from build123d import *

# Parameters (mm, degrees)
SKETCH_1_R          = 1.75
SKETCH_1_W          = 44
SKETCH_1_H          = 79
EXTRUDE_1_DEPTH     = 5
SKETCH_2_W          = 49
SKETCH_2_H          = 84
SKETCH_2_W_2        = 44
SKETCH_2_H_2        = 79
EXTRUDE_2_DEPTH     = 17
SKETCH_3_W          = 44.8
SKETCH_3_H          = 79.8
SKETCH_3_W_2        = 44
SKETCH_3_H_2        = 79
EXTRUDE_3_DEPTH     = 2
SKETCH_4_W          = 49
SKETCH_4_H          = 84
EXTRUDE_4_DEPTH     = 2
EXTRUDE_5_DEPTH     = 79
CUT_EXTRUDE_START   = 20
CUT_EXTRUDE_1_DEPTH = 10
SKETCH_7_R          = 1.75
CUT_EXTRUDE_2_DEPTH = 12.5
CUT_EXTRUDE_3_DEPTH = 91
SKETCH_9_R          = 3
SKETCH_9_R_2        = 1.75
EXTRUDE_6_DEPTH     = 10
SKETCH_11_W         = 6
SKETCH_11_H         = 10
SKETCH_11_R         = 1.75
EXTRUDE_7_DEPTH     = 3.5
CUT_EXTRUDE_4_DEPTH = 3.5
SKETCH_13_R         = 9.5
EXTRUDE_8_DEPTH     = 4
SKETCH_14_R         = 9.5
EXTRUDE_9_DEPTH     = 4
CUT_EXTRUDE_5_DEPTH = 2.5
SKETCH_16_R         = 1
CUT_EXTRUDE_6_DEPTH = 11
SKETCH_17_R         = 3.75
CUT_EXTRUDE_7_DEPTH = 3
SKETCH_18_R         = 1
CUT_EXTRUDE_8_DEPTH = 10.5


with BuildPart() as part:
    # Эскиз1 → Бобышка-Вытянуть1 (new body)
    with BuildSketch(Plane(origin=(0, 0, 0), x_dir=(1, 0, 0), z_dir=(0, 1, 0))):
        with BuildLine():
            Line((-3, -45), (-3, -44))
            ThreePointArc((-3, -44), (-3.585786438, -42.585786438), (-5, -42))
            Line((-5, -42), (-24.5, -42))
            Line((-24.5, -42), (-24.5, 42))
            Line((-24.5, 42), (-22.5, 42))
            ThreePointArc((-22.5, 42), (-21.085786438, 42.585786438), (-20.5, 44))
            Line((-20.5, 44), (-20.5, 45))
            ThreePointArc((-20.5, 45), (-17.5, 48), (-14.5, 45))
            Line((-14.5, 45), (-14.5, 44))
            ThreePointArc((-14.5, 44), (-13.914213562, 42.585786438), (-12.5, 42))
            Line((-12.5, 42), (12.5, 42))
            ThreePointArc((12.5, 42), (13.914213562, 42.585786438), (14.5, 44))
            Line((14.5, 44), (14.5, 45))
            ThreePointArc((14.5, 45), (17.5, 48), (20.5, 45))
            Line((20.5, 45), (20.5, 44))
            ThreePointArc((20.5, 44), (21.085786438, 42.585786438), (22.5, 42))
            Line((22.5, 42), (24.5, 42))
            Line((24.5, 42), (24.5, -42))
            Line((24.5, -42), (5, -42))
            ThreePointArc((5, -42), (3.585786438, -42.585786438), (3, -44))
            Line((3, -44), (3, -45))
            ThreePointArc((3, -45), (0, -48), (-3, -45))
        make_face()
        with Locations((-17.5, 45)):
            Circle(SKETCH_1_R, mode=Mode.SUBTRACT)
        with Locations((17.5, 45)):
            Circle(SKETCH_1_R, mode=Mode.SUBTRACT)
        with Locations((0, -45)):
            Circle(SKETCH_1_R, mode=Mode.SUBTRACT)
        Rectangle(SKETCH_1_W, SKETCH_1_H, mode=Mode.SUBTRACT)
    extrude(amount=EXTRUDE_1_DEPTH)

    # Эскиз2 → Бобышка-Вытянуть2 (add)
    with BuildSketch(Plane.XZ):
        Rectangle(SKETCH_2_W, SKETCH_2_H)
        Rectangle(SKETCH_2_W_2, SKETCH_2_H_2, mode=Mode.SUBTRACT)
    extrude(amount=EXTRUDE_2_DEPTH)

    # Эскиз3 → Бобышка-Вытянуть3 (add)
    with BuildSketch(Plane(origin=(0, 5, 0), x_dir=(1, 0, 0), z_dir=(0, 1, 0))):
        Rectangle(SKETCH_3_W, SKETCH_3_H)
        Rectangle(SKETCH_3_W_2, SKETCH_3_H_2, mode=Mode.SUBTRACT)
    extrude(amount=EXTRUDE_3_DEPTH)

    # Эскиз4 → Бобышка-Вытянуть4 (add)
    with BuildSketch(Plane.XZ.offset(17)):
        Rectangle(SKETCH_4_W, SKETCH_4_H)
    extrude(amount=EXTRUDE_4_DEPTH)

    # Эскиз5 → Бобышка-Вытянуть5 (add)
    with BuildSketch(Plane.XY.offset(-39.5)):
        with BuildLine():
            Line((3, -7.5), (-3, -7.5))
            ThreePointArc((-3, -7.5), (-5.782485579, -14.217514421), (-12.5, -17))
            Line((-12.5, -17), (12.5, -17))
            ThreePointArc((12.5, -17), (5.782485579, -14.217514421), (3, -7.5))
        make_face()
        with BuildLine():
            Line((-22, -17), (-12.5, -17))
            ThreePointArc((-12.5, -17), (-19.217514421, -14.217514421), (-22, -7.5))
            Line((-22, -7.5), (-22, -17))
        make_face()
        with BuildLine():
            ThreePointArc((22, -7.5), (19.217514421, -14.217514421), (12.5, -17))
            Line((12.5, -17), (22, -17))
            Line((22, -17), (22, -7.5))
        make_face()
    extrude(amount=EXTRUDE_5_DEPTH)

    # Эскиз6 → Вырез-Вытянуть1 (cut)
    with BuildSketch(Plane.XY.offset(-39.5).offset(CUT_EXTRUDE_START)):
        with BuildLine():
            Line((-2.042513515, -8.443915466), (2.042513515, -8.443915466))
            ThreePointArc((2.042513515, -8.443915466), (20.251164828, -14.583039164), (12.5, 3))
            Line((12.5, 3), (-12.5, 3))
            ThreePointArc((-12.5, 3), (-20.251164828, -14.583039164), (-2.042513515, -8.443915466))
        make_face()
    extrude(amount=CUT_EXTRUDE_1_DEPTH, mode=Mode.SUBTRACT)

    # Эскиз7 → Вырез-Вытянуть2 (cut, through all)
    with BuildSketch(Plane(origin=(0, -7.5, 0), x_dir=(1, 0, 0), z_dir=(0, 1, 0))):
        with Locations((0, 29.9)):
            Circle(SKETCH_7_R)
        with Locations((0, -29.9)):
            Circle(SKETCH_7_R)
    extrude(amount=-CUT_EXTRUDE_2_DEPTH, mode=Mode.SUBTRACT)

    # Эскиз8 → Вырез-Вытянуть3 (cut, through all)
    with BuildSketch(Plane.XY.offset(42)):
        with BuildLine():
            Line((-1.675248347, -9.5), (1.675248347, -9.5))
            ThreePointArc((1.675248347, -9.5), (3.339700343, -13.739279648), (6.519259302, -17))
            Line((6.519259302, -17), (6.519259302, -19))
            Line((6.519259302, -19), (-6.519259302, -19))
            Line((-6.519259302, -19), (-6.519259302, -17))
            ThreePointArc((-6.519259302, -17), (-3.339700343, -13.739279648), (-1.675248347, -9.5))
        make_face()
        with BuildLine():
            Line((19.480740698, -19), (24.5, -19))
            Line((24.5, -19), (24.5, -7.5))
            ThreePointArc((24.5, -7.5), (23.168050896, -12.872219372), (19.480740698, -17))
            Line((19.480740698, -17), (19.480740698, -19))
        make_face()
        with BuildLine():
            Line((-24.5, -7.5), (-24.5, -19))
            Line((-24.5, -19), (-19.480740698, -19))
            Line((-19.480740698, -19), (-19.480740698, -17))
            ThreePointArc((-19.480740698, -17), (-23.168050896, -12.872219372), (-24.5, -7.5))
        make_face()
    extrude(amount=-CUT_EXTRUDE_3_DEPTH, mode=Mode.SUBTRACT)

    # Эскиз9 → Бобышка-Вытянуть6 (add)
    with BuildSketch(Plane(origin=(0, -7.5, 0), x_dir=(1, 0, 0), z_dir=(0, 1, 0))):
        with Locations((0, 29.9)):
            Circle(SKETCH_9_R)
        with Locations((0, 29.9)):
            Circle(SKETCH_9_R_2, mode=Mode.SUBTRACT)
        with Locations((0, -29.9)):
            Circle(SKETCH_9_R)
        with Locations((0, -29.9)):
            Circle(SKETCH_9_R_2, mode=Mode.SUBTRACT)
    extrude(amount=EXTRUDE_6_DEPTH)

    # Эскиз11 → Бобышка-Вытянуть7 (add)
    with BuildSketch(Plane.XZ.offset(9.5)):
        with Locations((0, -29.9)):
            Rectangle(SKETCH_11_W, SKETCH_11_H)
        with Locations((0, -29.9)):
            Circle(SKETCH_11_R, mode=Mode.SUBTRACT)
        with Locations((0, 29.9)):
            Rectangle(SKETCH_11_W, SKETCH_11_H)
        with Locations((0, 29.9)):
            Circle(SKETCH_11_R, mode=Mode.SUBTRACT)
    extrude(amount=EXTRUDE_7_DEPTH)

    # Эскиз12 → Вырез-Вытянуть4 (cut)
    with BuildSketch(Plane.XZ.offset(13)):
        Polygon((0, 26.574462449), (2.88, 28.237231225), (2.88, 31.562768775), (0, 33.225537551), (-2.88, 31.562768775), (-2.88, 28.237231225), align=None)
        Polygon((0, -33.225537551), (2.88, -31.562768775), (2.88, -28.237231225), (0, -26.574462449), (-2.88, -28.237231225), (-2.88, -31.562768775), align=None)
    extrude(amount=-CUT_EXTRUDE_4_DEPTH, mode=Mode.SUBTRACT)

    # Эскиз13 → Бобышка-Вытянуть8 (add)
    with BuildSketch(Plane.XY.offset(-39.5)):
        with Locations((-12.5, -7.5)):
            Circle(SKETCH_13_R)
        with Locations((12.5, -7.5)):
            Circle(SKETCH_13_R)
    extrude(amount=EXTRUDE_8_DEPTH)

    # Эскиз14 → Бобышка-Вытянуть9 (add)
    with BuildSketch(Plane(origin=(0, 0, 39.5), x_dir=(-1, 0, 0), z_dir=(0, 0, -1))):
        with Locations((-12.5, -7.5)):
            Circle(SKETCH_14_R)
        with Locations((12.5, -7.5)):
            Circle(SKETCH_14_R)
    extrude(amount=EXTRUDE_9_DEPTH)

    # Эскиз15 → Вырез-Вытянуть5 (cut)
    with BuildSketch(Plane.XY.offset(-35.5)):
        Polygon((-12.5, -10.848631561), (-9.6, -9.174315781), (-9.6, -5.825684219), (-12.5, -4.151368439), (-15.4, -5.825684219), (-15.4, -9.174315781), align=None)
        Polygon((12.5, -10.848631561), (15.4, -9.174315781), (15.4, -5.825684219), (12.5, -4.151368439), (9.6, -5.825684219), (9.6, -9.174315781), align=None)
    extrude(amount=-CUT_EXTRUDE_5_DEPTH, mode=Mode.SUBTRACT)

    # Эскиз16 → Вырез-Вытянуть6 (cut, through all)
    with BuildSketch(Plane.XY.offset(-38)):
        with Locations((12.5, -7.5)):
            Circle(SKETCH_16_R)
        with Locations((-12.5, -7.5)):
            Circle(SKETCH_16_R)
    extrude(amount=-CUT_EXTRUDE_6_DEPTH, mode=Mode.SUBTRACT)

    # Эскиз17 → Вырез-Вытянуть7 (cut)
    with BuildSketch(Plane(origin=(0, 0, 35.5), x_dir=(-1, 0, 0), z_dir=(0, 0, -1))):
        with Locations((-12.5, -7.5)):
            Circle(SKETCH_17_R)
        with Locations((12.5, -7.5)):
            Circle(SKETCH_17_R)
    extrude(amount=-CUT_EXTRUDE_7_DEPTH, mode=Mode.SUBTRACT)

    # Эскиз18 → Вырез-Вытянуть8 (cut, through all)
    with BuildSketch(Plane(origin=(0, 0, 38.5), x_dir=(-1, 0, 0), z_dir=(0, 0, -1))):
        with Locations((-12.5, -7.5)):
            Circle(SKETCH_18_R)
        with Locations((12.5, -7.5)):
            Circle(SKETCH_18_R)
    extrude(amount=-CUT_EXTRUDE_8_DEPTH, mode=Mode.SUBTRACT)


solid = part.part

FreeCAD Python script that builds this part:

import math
import FreeCAD as App
import Part
import Sketcher
Q = App.Units.Quantity

doc = App.newDocument("Part")
body = doc.addObject("PartDesign::Body", "Body")

# Sketch on XZ plane
sketch1 = body.newObject("Sketcher::SketchObject", "Sketch")
sketch1.AttachmentSupport = (doc.getObject("XZ_Plane"), [""])
sketch1.MapMode = "FlatFace"
sketch1.addGeometry(Part.LineSegment(App.Vector(-3, 44, 0), App.Vector(-3, 45, 0)), False)
sketch1.addGeometry(Part.ArcOfCircle(Part.Circle(App.Vector(0, 45, 0), App.Vector(0, 0, 1), 3), math.radians(0), math.radians(180)), False)
sketch1.addGeometry(Part.LineSegment(App.Vector(3, 45, 0), App.Vector(3, 44, 0)), False)
sketch1.addGeometry(Part.ArcOfCircle(Part.Circle(App.Vector(5, 44, 0), App.Vector(0, 0, 1), 2), math.radians(-180), math.radians(-90)), False)
sketch1.addGeometry(Part.LineSegment(App.Vector(5, 42, 0), App.Vector(24.5, 42, 0)), False)
sketch1.addGeometry(Part.LineSegment(App.Vector(24.5, 42, 0), App.Vector(24.5, -42, 0)), False)
sketch1.addGeometry(Part.LineSegment(App.Vector(24.5, -42, 0), App.Vector(22.5, -42, 0)), False)
sketch1.addGeometry(Part.ArcOfCircle(Part.Circle(App.Vector(22.5, -44, 0), App.Vector(0, 0, 1), 2), math.radians(90), math.radians(180)), False)
sketch1.addGeometry(Part.LineSegment(App.Vector(20.5, -44, 0), App.Vector(20.5, -45, 0)), False)
sketch1.addGeometry(Part.ArcOfCircle(Part.Circle(App.Vector(17.5, -45, 0), App.Vector(0, 0, 1), 3), math.radians(180), math.radians(360)), False)
sketch1.addGeometry(Part.LineSegment(App.Vector(14.5, -45, 0), App.Vector(14.5, -44, 0)), False)
sketch1.addGeometry(Part.ArcOfCircle(Part.Circle(App.Vector(12.5, -44, 0), App.Vector(0, 0, 1), 2), math.radians(0), math.radians(90)), False)
sketch1.addGeometry(Part.LineSegment(App.Vector(12.5, -42, 0), App.Vector(-12.5, -42, 0)), False)
sketch1.addGeometry(Part.ArcOfCircle(Part.Circle(App.Vector(-12.5, -44, 0), App.Vector(0, 0, 1), 2), math.radians(90), math.radians(180)), False)
sketch1.addGeometry(Part.LineSegment(App.Vector(-14.5, -44, 0), App.Vector(-14.5, -45, 0)), False)
sketch1.addGeometry(Part.ArcOfCircle(Part.Circle(App.Vector(-17.5, -45, 0), App.Vector(0, 0, 1), 3), math.radians(180), math.radians(360)), False)
sketch1.addGeometry(Part.LineSegment(App.Vector(-20.5, -45, 0), App.Vector(-20.5, -44, 0)), False)
sketch1.addGeometry(Part.ArcOfCircle(Part.Circle(App.Vector(-22.5, -44, 0), App.Vector(0, 0, 1), 2), math.radians(0), math.radians(90)), False)
sketch1.addGeometry(Part.LineSegment(App.Vector(-22.5, -42, 0), App.Vector(-24.5, -42, 0)), False)
sketch1.addGeometry(Part.LineSegment(App.Vector(-24.5, -42, 0), App.Vector(-24.5, 42, 0)), False)
sketch1.addGeometry(Part.LineSegment(App.Vector(-24.5, 42, 0), App.Vector(-5, 42, 0)), False)
sketch1.addGeometry(Part.ArcOfCircle(Part.Circle(App.Vector(-5, 44, 0), App.Vector(0, 0, 1), 2), math.radians(-90), math.radians(0)), False)
sketch1.addGeometry(Part.Circle(App.Vector(0, 45, 0), App.Vector(0, 0, 1), 1.8), False)
sketch1.addGeometry(Part.LineSegment(App.Vector(-22, 39.5, 0), App.Vector(-22, -39.5, 0)), False)
sketch1.addGeometry(Part.LineSegment(App.Vector(-22, -39.5, 0), App.Vector(22, -39.5, 0)), False)
sketch1.addGeometry(Part.LineSegment(App.Vector(22, -39.5, 0), App.Vector(22, 39.5, 0)), False)
sketch1.addGeometry(Part.LineSegment(App.Vector(22, 39.5, 0), App.Vector(-22, 39.5, 0)), False)
sketch1.addGeometry(Part.Circle(App.Vector(17.5, -45, 0), App.Vector(0, 0, 1), 1.8), False)
sketch1.addGeometry(Part.Circle(App.Vector(-17.5, -45, 0), App.Vector(0, 0, 1), 1.8), False)
sketch1.addConstraint(Sketcher.Constraint("Tangent", 0, 2, 1, 2))
sketch1.addConstraint(Sketcher.Constraint("Tangent", 1, 1, 2, 1))
sketch1.addConstraint(Sketcher.Constraint("Tangent", 2, 2, 3, 1))
sketch1.addConstraint(Sketcher.Constraint("Tangent", 3, 2, 4, 1))
sketch1.addConstraint(Sketcher.Constraint("Coincident", 4, 2, 5, 1))
sketch1.addConstraint(Sketcher.Constraint("Coincident", 5, 2, 6, 1))
sketch1.addConstraint(Sketcher.Constraint("Tangent", 6, 2, 7, 1))
sketch1.addConstraint(Sketcher.Constraint("Tangent", 7, 2, 8, 1))
sketch1.addConstraint(Sketcher.Constraint("Tangent", 8, 2, 9, 2))
sketch1.addConstraint(Sketcher.Constraint("Tangent", 9, 1, 10, 1))
sketch1.addConstraint(Sketcher.Constraint("Tangent", 10, 2, 11, 1))
sketch1.addConstraint(Sketcher.Constraint("Tangent", 11, 2, 12, 1))
sketch1.addConstraint(Sketcher.Constraint("Tangent", 12, 2, 13, 1))
sketch1.addConstraint(Sketcher.Constraint("Tangent", 13, 2, 14, 1))
sketch1.addConstraint(Sketcher.Constraint("Tangent", 14, 2, 15, 2))
sketch1.addConstraint(Sketcher.Constraint("Tangent", 15, 1, 16, 1))
sketch1.addConstraint(Sketcher.Constraint("Tangent", 16, 2, 17, 1))
sketch1.addConstraint(Sketcher.Constraint("Tangent", 17, 2, 18, 1))
sketch1.addConstraint(Sketcher.Constraint("Coincident", 18, 2, 19, 1))
sketch1.addConstraint(Sketcher.Constraint("Coincident", 19, 2, 20, 1))
sketch1.addConstraint(Sketcher.Constraint("Tangent", 20, 2, 21, 1))
sketch1.addConstraint(Sketcher.Constraint("Tangent", 21, 2, 0, 1))
sketch1.addConstraint(Sketcher.Constraint("Coincident", 23, 2, 24, 1))
sketch1.addConstraint(Sketcher.Constraint("Coincident", 24, 2, 25, 1))
sketch1.addConstraint(Sketcher.Constraint("Coincident", 25, 2, 26, 1))
sketch1.addConstraint(Sketcher.Constraint("Coincident", 26, 2, 23, 1))
sketch1.addConstraint(Sketcher.Constraint("Vertical", 0))
sketch1.addConstraint(Sketcher.Constraint("Vertical", 2))
sketch1.addConstraint(Sketcher.Constraint("Horizontal", 4))
sketch1.addConstraint(Sketcher.Constraint("Vertical", 5))
sketch1.addConstraint(Sketcher.Constraint("Horizontal", 6))
sketch1.addConstraint(Sketcher.Constraint("Vertical", 8))
sketch1.addConstraint(Sketcher.Constraint("Vertical", 10))
sketch1.addConstraint(Sketcher.Constraint("Horizontal", 12))
sketch1.addConstraint(Sketcher.Constraint("Vertical", 14))
sketch1.addConstraint(Sketcher.Constraint("Vertical", 16))
sketch1.addConstraint(Sketcher.Constraint("Horizontal", 18))
sketch1.addConstraint(Sketcher.Constraint("Vertical", 19))
sketch1.addConstraint(Sketcher.Constraint("Horizontal", 20))
sketch1.addConstraint(Sketcher.Constraint("Vertical", 23))
sketch1.addConstraint(Sketcher.Constraint("Horizontal", 24))
sketch1.addConstraint(Sketcher.Constraint("Vertical", 25))
sketch1.addConstraint(Sketcher.Constraint("Horizontal", 26))
sketch1.addConstraint(Sketcher.Constraint("Coincident", 22, 3, 1, 3))
sketch1.addConstraint(Sketcher.Constraint("Coincident", 27, 3, 9, 3))
sketch1.addConstraint(Sketcher.Constraint("Coincident", 28, 3, 15, 3))
sketch1.addConstraint(Sketcher.Constraint("Equal", 3, 7))
sketch1.addConstraint(Sketcher.Constraint("Equal", 1, 9))
sketch1.addConstraint(Sketcher.Constraint("Equal", 7, 11))
sketch1.addConstraint(Sketcher.Constraint("Equal", 11, 13))
sketch1.addConstraint(Sketcher.Constraint("Equal", 9, 15))
sketch1.addConstraint(Sketcher.Constraint("Equal", 13, 17))
sketch1.addConstraint(Sketcher.Constraint("Equal", 17, 21))
sketch1.addConstraint(Sketcher.Constraint("Equal", 22, 27))
sketch1.addConstraint(Sketcher.Constraint("Equal", 27, 28))
sketch1.addConstraint(Sketcher.Constraint("Symmetric", 4, 2, 18, 2, -1, 1))
sketch1.addConstraint(Sketcher.Constraint("Symmetric", 23, 2, 25, 2, -1, 1))
sketch1.addConstraint(Sketcher.Constraint("Symmetric", 9, 3, 15, 3, -2))
sketch1.addConstraint(Sketcher.Constraint("Symmetric", 3, 3, 21, 3, -2))
sketch1.addConstraint(Sketcher.Constraint("Horizontal", 7, 3, 11, 3))
sketch1.addConstraint(Sketcher.Constraint("Horizontal", 13, 3, 17, 3))
sketch1.addConstraint(Sketcher.Constraint("Equal", 2, 8))
sketch1.addConstraint(Sketcher.Constraint("Radius", 1, 3.0))
sketch1.addConstraint(Sketcher.Constraint("Radius", 3, 2.0))
sketch1.addConstraint(Sketcher.Constraint("Diameter", 22, 3.5))
sketch1.addConstraint(Sketcher.Constraint("DistanceX", 6, 2, 6, 1, 2.0))
sketch1.addConstraint(Sketcher.Constraint("DistanceX", 12, 2, 12, 1, 25.0))
sketch1.addConstraint(Sketcher.Constraint("DistanceX", 24, 1, 24, 2, 44.0))
sketch1.addConstraint(Sketcher.Constraint("DistanceY", 0, 1, 0, 2, 1.0))
sketch1.addConstraint(Sketcher.Constraint("DistanceY", 5, 2, 5, 1, 84.0))
sketch1.addConstraint(Sketcher.Constraint("DistanceY", 23, 2, 23, 1, 79.0))
pad1 = body.newObject("PartDesign::Pad", "Pad")
pad1.Profile = sketch1
pad1.Length = 5
pad1.Reversed = True

# Sketch on XZ plane
sketch2 = body.newObject("Sketcher::SketchObject", "Sketch001")
sketch2.AttachmentSupport = (doc.getObject("XZ_Plane"), [""])
sketch2.MapMode = "FlatFace"
sketch2.addGeometry(Part.LineSegment(App.Vector(-24, 42, 0), App.Vector(-24, -42, 0)), False)
sketch2.addGeometry(Part.LineSegment(App.Vector(-24, -42, 0), App.Vector(24, -42, 0)), False)
sketch2.addGeometry(Part.LineSegment(App.Vector(24, -42, 0), App.Vector(24, 42, 0)), False)
sketch2.addGeometry(Part.LineSegment(App.Vector(24, 42, 0), App.Vector(-24, 42, 0)), False)
sketch2.addGeometry(Part.LineSegment(App.Vector(22, -40, 0), App.Vector(-22, -40, 0)), False)
sketch2.addGeometry(Part.LineSegment(App.Vector(-22, -40, 0), App.Vector(-22, 40, 0)), False)
sketch2.addGeometry(Part.LineSegment(App.Vector(-22, 40, 0), App.Vector(22, 40, 0)), False)
sketch2.addGeometry(Part.LineSegment(App.Vector(22, 40, 0), App.Vector(22, -40, 0)), False)
sketch2.addConstraint(Sketcher.Constraint("Coincident", 0, 2, 1, 1))
sketch2.addConstraint(Sketcher.Constraint("Coincident", 1, 2, 2, 1))
sketch2.addConstraint(Sketcher.Constraint("Coincident", 2, 2, 3, 1))
sketch2.addConstraint(Sketcher.Constraint("Coincident", 3, 2, 0, 1))
sketch2.addConstraint(Sketcher.Constraint("Coincident", 4, 2, 5, 1))
sketch2.addConstraint(Sketcher.Constraint("Coincident", 5, 2, 6, 1))
sketch2.addConstraint(Sketcher.Constraint("Coincident", 6, 2, 7, 1))
sketch2.addConstraint(Sketcher.Constraint("Coincident", 7, 2, 4, 1))
sketch2.addConstraint(Sketcher.Constraint("Vertical", 0))
sketch2.addConstraint(Sketcher.Constraint("Horizontal", 1))
sketch2.addConstraint(Sketcher.Constraint("Vertical", 2))
sketch2.addConstraint(Sketcher.Constraint("Horizontal", 3))
sketch2.addConstraint(Sketcher.Constraint("Horizontal", 4))
sketch2.addConstraint(Sketcher.Constraint("Vertical", 5))
sketch2.addConstraint(Sketcher.Constraint("Horizontal", 6))
sketch2.addConstraint(Sketcher.Constraint("Vertical", 7))
sketch2.addConstraint(Sketcher.Constraint("Symmetric", 0, 2, 2, 2, -1, 1))
sketch2.addConstraint(Sketcher.Constraint("Symmetric", 4, 2, 6, 2, -1, 1))
sketch2.addConstraint(Sketcher.Constraint("DistanceX", 1, 1, 1, 2, 49.0))
sketch2.addConstraint(Sketcher.Constraint("DistanceX", 4, 2, 4, 1, 44.0))
sketch2.addConstraint(Sketcher.Constraint("DistanceY", 0, 2, 0, 1, 84.0))
sketch2.addConstraint(Sketcher.Constraint("DistanceY", 5, 1, 5, 2, 79.0))
pad2 = body.newObject("PartDesign::Pad", "Pad001")
pad2.Profile = sketch2
pad2.Length = 17

# Sketch on XZ plane
sketch3 = body.newObject("Sketcher::SketchObject", "Sketch002")
sketch3.AttachmentSupport = (doc.getObject("XZ_Plane"), [""])
sketch3.MapMode = "FlatFace"
sketch3.AttachmentOffset = App.Placement(App.Vector(0, 0, -5), App.Rotation())
sketch3.addGeometry(Part.LineSegment(App.Vector(-22, -40, 0), App.Vector(-22, 40, 0)), False)
sketch3.addGeometry(Part.LineSegment(App.Vector(-22, 40, 0), App.Vector(22, 40, 0)), False)
sketch3.addGeometry(Part.LineSegment(App.Vector(22, 40, 0), App.Vector(22, -40, 0)), False)
sketch3.addGeometry(Part.LineSegment(App.Vector(22, -40, 0), App.Vector(-22, -40, 0)), False)
sketch3.addGeometry(Part.LineSegment(App.Vector(22, 40, 0), App.Vector(-22, 40, 0)), False)
sketch3.addGeometry(Part.LineSegment(App.Vector(-22, 40, 0), App.Vector(-22, -40, 0)), False)
sketch3.addGeometry(Part.LineSegment(App.Vector(-22, -40, 0), App.Vector(22, -40, 0)), False)
sketch3.addGeometry(Part.LineSegment(App.Vector(22, -40, 0), App.Vector(22, 40, 0)), False)
sketch3.addConstraint(Sketcher.Constraint("Coincident", 0, 2, 1, 1))
sketch3.addConstraint(Sketcher.Constraint("Coincident", 1, 2, 2, 1))
sketch3.addConstraint(Sketcher.Constraint("Coincident", 2, 2, 3, 1))
sketch3.addConstraint(Sketcher.Constraint("Coincident", 3, 2, 0, 1))
sketch3.addConstraint(Sketcher.Constraint("Coincident", 4, 2, 5, 1))
sketch3.addConstraint(Sketcher.Constraint("Coincident", 5, 2, 6, 1))
sketch3.addConstraint(Sketcher.Constraint("Coincident", 6, 2, 7, 1))
sketch3.addConstraint(Sketcher.Constraint("Coincident", 7, 2, 4, 1))
sketch3.addConstraint(Sketcher.Constraint("Vertical", 0))
sketch3.addConstraint(Sketcher.Constraint("Horizontal", 1))
sketch3.addConstraint(Sketcher.Constraint("Vertical", 2))
sketch3.addConstraint(Sketcher.Constraint("Horizontal", 3))
sketch3.addConstraint(Sketcher.Constraint("Horizontal", 4))
sketch3.addConstraint(Sketcher.Constraint("Vertical", 5))
sketch3.addConstraint(Sketcher.Constraint("Horizontal", 6))
sketch3.addConstraint(Sketcher.Constraint("Vertical", 7))
sketch3.addConstraint(Sketcher.Constraint("Symmetric", 0, 2, 2, 2, -1, 1))
sketch3.addConstraint(Sketcher.Constraint("Symmetric", 4, 2, 6, 2, -1, 1))
sketch3.addConstraint(Sketcher.Constraint("DistanceX", 4, 2, 4, 1, 44.0))
sketch3.addConstraint(Sketcher.Constraint("DistanceY", 5, 2, 5, 1, 79.0))
sketch3.addConstraint(Sketcher.Constraint("DistanceX", 1, 1, 1, 2, 44.8))
sketch3.addConstraint(Sketcher.Constraint("DistanceY", 0, 1, 0, 2, 79.8))
pad3 = body.newObject("PartDesign::Pad", "Pad002")
pad3.Profile = sketch3
pad3.Length = 2
pad3.Reversed = True

# Sketch on XZ plane
sketch4 = body.newObject("Sketcher::SketchObject", "Sketch003")
sketch4.AttachmentSupport = (doc.getObject("XZ_Plane"), [""])
sketch4.MapMode = "FlatFace"
sketch4.AttachmentOffset = App.Placement(App.Vector(0, 0, 17), App.Rotation())
sketch4.addGeometry(Part.LineSegment(App.Vector(-24, 42, 0), App.Vector(-24, -42, 0)), False)
sketch4.addGeometry(Part.LineSegment(App.Vector(-24, -42, 0), App.Vector(24, -42, 0)), False)
sketch4.addGeometry(Part.LineSegment(App.Vector(24, -42, 0), App.Vector(24, 42, 0)), False)
sketch4.addGeometry(Part.LineSegment(App.Vector(24, 42, 0), App.Vector(-24, 42, 0)), False)
sketch4.addConstraint(Sketcher.Constraint("Coincident", 0, 2, 1, 1))
sketch4.addConstraint(Sketcher.Constraint("Coincident", 1, 2, 2, 1))
sketch4.addConstraint(Sketcher.Constraint("Coincident", 2, 2, 3, 1))
sketch4.addConstraint(Sketcher.Constraint("Coincident", 3, 2, 0, 1))
sketch4.addConstraint(Sketcher.Constraint("Vertical", 0))
sketch4.addConstraint(Sketcher.Constraint("Horizontal", 1))
sketch4.addConstraint(Sketcher.Constraint("Vertical", 2))
sketch4.addConstraint(Sketcher.Constraint("Horizontal", 3))
sketch4.addConstraint(Sketcher.Constraint("Symmetric", 0, 2, 2, 2, -1, 1))
sketch4.addConstraint(Sketcher.Constraint("DistanceX", 1, 1, 1, 2, 49.0))
sketch4.addConstraint(Sketcher.Constraint("DistanceY", 0, 2, 0, 1, 84.0))
pad4 = body.newObject("PartDesign::Pad", "Pad003")
pad4.Profile = sketch4
pad4.Length = 2

# Sketch on XY plane
sketch5 = body.newObject("Sketcher::SketchObject", "Sketch004")
sketch5.AttachmentSupport = (doc.getObject("XY_Plane"), [""])
sketch5.MapMode = "FlatFace"
sketch5.AttachmentOffset = App.Placement(App.Vector(0, 0, -39.5), App.Rotation())
sketch5.addGeometry(Part.LineSegment(App.Vector(3, -8, 0), App.Vector(-3, -8, 0)), False)
sketch5.addGeometry(Part.ArcOfCircle(Part.Circle(App.Vector(-13, -7, 0), App.Vector(0, 0, 1), 10), math.radians(-90), math.radians(0)), False)
sketch5.addGeometry(Part.LineSegment(App.Vector(-12, -17, 0), App.Vector(12, -17, 0)), False)
sketch5.addGeometry(Part.ArcOfCircle(Part.Circle(App.Vector(13, -7, 0), App.Vector(0, 0, 1), 10), math.radians(-180), math.radians(-90)), False)
sketch5.addGeometry(Part.LineSegment(App.Vector(-22, -17, 0), App.Vector(-12, -17, 0)), False)
sketch5.addGeometry(Part.ArcOfCircle(Part.Circle(App.Vector(-12, -7, 0), App.Vector(0, 0, 1), 10), math.radians(-180), math.radians(-90)), False)
sketch5.addGeometry(Part.LineSegment(App.Vector(-22, -8, 0), App.Vector(-22, -17, 0)), False)
sketch5.addGeometry(Part.ArcOfCircle(Part.Circle(App.Vector(12, -7, 0), App.Vector(0, 0, 1), 10), math.radians(-90), math.radians(0)), False)
sketch5.addGeometry(Part.LineSegment(App.Vector(12, -17, 0), App.Vector(22, -17, 0)), False)
sketch5.addGeometry(Part.LineSegment(App.Vector(22, -17, 0), App.Vector(22, -8, 0)), False)
sketch5.addConstraint(Sketcher.Constraint("Coincident", 0, 2, 1, 2))
sketch5.addConstraint(Sketcher.Constraint("Tangent", 1, 1, 2, 1))
sketch5.addConstraint(Sketcher.Constraint("Tangent", 2, 2, 3, 2))
sketch5.addConstraint(Sketcher.Constraint("Coincident", 3, 1, 0, 1))
sketch5.addConstraint(Sketcher.Constraint("Tangent", 4, 2, 5, 2))
sketch5.addConstraint(Sketcher.Constraint("Tangent", 5, 1, 6, 1))
sketch5.addConstraint(Sketcher.Constraint("Coincident", 6, 2, 4, 1))
sketch5.addConstraint(Sketcher.Constraint("Tangent", 7, 1, 8, 1))
sketch5.addConstraint(Sketcher.Constraint("Coincident", 8, 2, 9, 1))
sketch5.addConstraint(Sketcher.Constraint("Tangent", 9, 2, 7, 2))
sketch5.addConstraint(Sketcher.Constraint("Horizontal", 0))
sketch5.addConstraint(Sketcher.Constraint("Horizontal", 2))
sketch5.addConstraint(Sketcher.Constraint("Horizontal", 4))
sketch5.addConstraint(Sketcher.Constraint("Vertical", 6))
sketch5.addConstraint(Sketcher.Constraint("Horizontal", 8))
sketch5.addConstraint(Sketcher.Constraint("Vertical", 9))
sketch5.addConstraint(Sketcher.Constraint("Coincident", 5, 3, 1, 3))
sketch5.addConstraint(Sketcher.Constraint("Coincident", 7, 3, 3, 3))
sketch5.addConstraint(Sketcher.Constraint("Equal", 1, 3))
sketch5.addConstraint(Sketcher.Constraint("Equal", 3, 5))
sketch5.addConstraint(Sketcher.Constraint("Equal", 5, 7))
sketch5.addConstraint(Sketcher.Constraint("Horizontal", 7, 3, 0, 2))
sketch5.addConstraint(Sketcher.Constraint("Radius", 1, 9.5))
sketch5.addConstraint(Sketcher.Constraint("DistanceX", 0, 2, 0, 1, 6.0))
sketch5.addConstraint(Sketcher.Constraint("DistanceX", 0, 2, -1, 1, 3.0))
sketch5.addConstraint(Sketcher.Constraint("DistanceY", 1, 1, -1, 1, 17.0))
pad5 = body.newObject("PartDesign::Pad", "Pad004")
pad5.Profile = sketch5
pad5.Length = 79

# Sketch on XY plane
sketch6 = body.newObject("Sketcher::SketchObject", "Sketch005")
sketch6.AttachmentSupport = (doc.getObject("XY_Plane"), [""])
sketch6.MapMode = "FlatFace"
sketch6.AttachmentOffset = App.Placement(App.Vector(0, 0, -19.5), App.Rotation())
sketch6.addGeometry(Part.LineSegment(App.Vector(-2, -8.4, 0), App.Vector(2, -8.4, 0)), False)
sketch6.addGeometry(Part.ArcOfCircle(Part.Circle(App.Vector(12.5, -7.5, 0), App.Vector(0, 0, 1), 10.5), math.radians(-175), math.radians(90)), False)
sketch6.addGeometry(Part.LineSegment(App.Vector(12.5, 3, 0), App.Vector(-12.5, 3, 0)), False)
sketch6.addGeometry(Part.ArcOfCircle(Part.Circle(App.Vector(-12.5, -7.5, 0), App.Vector(0, 0, 1), 10.5), math.radians(90), math.radians(355)), False)
sketch6.addConstraint(Sketcher.Constraint("Coincident", 0, 2, 1, 1))
sketch6.addConstraint(Sketcher.Constraint("Tangent", 1, 2, 2, 1))
sketch6.addConstraint(Sketcher.Constraint("Tangent", 2, 2, 3, 1))
sketch6.addConstraint(Sketcher.Constraint("Coincident", 3, 2, 0, 1))
sketch6.addConstraint(Sketcher.Constraint("Horizontal", 0))
sketch6.addConstraint(Sketcher.Constraint("Horizontal", 2))
sketch6.addConstraint(Sketcher.Constraint("Equal", 1, 3))
sketch6.addConstraint(Sketcher.Constraint("Radius", 1, 10.5))
sketch6.addConstraint(Sketcher.Constraint("DistanceX", 2, 2, 2, 1, 25.0))
sketch6.addConstraint(Sketcher.Constraint("DistanceY", -1, 1, 1, 2, 3.0))
sketch6.addConstraint(Sketcher.Constraint("DistanceX", -1, 1, 1, 3, 12.5))
sketch6.addConstraint(Sketcher.Constraint("DistanceX", 0, 1, 0, 2, 4.085027))
pocket1 = body.newObject("PartDesign::Pocket", "Pocket")
pocket1.Profile = sketch6
pocket1.Length = 10
pocket1.Reversed = True

# Sketch on XZ plane
sketch7 = body.newObject("Sketcher::SketchObject", "Sketch006")
sketch7.AttachmentSupport = (doc.getObject("XZ_Plane"), [""])
sketch7.MapMode = "FlatFace"
sketch7.AttachmentOffset = App.Placement(App.Vector(0, 0, 7.5), App.Rotation())
sketch7.addGeometry(Part.Circle(App.Vector(0, -29.9, 0), App.Vector(0, 0, 1), 1.8), False)
sketch7.addGeometry(Part.Circle(App.Vector(0, 29.9, 0), App.Vector(0, 0, 1), 1.8), False)
sketch7.addConstraint(Sketcher.Constraint("Equal", 0, 1))
sketch7.addConstraint(Sketcher.Constraint("Symmetric", 0, 3, 1, 3, -1, 1))
sketch7.addConstraint(Sketcher.Constraint("PointOnObject", 0, 3, -2))
sketch7.addConstraint(Sketcher.Constraint("Diameter", 0, 3.5))
sketch7.addConstraint(Sketcher.Constraint("DistanceY", 0, 3, -1, 1, 29.9))
pocket2 = body.newObject("PartDesign::Pocket", "Pocket001")
pocket2.Profile = sketch7
pocket2.Type = "ThroughAll"
pocket2.Reversed = True

# Sketch on XY plane
sketch8 = body.newObject("Sketcher::SketchObject", "Sketch007")
sketch8.AttachmentSupport = (doc.getObject("XY_Plane"), [""])
sketch8.MapMode = "FlatFace"
sketch8.AttachmentOffset = App.Placement(App.Vector(0, 0, 42), App.Rotation())
sketch8.addGeometry(Part.LineSegment(App.Vector(1.7, -9.5, 0), App.Vector(-1.7, -9.5, 0)), False)
sketch8.addGeometry(Part.ArcOfCircle(Part.Circle(App.Vector(-13, -7.5, 0), App.Vector(0, 0, 1), 11.5), math.radians(-56), math.radians(-10)), False)
sketch8.addGeometry(Part.LineSegment(App.Vector(-6.5, -17, 0), App.Vector(-6.5, -19, 0)), False)
sketch8.addGeometry(Part.LineSegment(App.Vector(-6.5, -19, 0), App.Vector(6.5, -19, 0)), False)
sketch8.addGeometry(Part.LineSegment(App.Vector(6.5, -19, 0), App.Vector(6.5, -17, 0)), False)
sketch8.addGeometry(Part.ArcOfCircle(Part.Circle(App.Vector(13, -7.5, 0), App.Vector(0, 0, 1), 11.5), math.radians(-170), math.radians(-124)), False)
sketch8.addGeometry(Part.LineSegment(App.Vector(19.5, -19, 0), App.Vector(24.5, -19, 0)), False)
sketch8.addGeometry(Part.LineSegment(App.Vector(24.5, -19, 0), App.Vector(24.5, -7.5, 0)), False)
sketch8.addGeometry(Part.ArcOfCircle(Part.Circle(App.Vector(13, -7.5, 0), App.Vector(0, 0, 1), 11.5), math.radians(-56), math.radians(0)), False)
sketch8.addGeometry(Part.LineSegment(App.Vector(19.5, -17, 0), App.Vector(19.5, -19, 0)), False)
sketch8.addGeometry(Part.LineSegment(App.Vector(-24.5, -7.5, 0), App.Vector(-24.5, -19, 0)), False)
sketch8.addGeometry(Part.LineSegment(App.Vector(-24.5, -19, 0), App.Vector(-19.5, -19, 0)), False)
sketch8.addGeometry(Part.LineSegment(App.Vector(-19.5, -19, 0), App.Vector(-19.5, -17, 0)), False)
sketch8.addGeometry(Part.ArcOfCircle(Part.Circle(App.Vector(-13, -7.5, 0), App.Vector(0, 0, 1), 11.5), math.radians(180), math.radians(236)), False)
sketch8.addConstraint(Sketcher.Constraint("Coincident", 0, 2, 1, 2))
sketch8.addConstraint(Sketcher.Constraint("Coincident", 1, 1, 2, 1))
sketch8.addConstraint(Sketcher.Constraint("Coincident", 2, 2, 3, 1))
sketch8.addConstraint(Sketcher.Constraint("Coincident", 3, 2, 4, 1))
sketch8.addConstraint(Sketcher.Constraint("Coincident", 4, 2, 5, 2))
sketch8.addConstraint(Sketcher.Constraint("Coincident", 5, 1, 0, 1))
sketch8.addConstraint(Sketcher.Constraint("Coincident", 6, 2, 7, 1))
sketch8.addConstraint(Sketcher.Constraint("Tangent", 7, 2, 8, 2))
sketch8.addConstraint(Sketcher.Constraint("Coincident", 8, 1, 9, 1))
sketch8.addConstraint(Sketcher.Constraint("Coincident", 9, 2, 6, 1))
sketch8.addConstraint(Sketcher.Constraint("Coincident", 10, 2, 11, 1))
sketch8.addConstraint(Sketcher.Constraint("Coincident", 11, 2, 12, 1))
sketch8.addConstraint(Sketcher.Constraint("Coincident", 12, 2, 13, 2))
sketch8.addConstraint(Sketcher.Constraint("Tangent", 13, 1, 10, 1))
sketch8.addConstraint(Sketcher.Constraint("Horizontal", 0))
sketch8.addConstraint(Sketcher.Constraint("Vertical", 2))
sketch8.addConstraint(Sketcher.Constraint("Horizontal", 3))
sketch8.addConstraint(Sketcher.Constraint("Vertical", 4))
sketch8.addConstraint(Sketcher.Constraint("Horizontal", 6))
sketch8.addConstraint(Sketcher.Constraint("Vertical", 7))
sketch8.addConstraint(Sketcher.Constraint("Vertical", 9))
sketch8.addConstraint(Sketcher.Constraint("Vertical", 10))
sketch8.addConstraint(Sketcher.Constraint("Horizontal", 11))
sketch8.addConstraint(Sketcher.Constraint("Vertical", 12))
sketch8.addConstraint(Sketcher.Constraint("Coincident", 8, 3, 5, 3))
sketch8.addConstraint(Sketcher.Constraint("Coincident", 13, 3, 1, 3))
sketch8.addConstraint(Sketcher.Constraint("Equal", 1, 5))
sketch8.addConstraint(Sketcher.Constraint("Equal", 5, 8))
sketch8.addConstraint(Sketcher.Constraint("Equal", 8, 13))
sketch8.addConstraint(Sketcher.Constraint("Symmetric", 1, 3, 5, 3, -2))
sketch8.addConstraint(Sketcher.Constraint("Symmetric", 9, 2, 11, 2, -2))
sketch8.addConstraint(Sketcher.Constraint("Horizontal", 1, 1, 4, 2))
sketch8.addConstraint(Sketcher.Constraint("Horizontal", 3, 2, 6, 2))
sketch8.addConstraint(Sketcher.Constraint("Horizontal", 4, 2, 8, 1))
sketch8.addConstraint(Sketcher.Constraint("Radius", 1, 11.5))
sketch8.addConstraint(Sketcher.Constraint("DistanceY", 2, 2, 2, 1, 2.0))
sketch8.addConstraint(Sketcher.Constraint("DistanceY", 7, 1, 7, 2, 11.5))
sketch8.addConstraint(Sketcher.Constraint("DistanceX", 1, 3, -1, 1, 13.0))
sketch8.addConstraint(Sketcher.Constraint("DistanceY", 1, 1, -1, 1, 17.0))
sketch8.addConstraint(Sketcher.Constraint("DistanceY", 0, 2, 13, 3, 2.0))
pocket3 = body.newObject("PartDesign::Pocket", "Pocket002")
pocket3.Profile = sketch8
pocket3.Type = "ThroughAll"

# Sketch on XZ plane
sketch9 = body.newObject("Sketcher::SketchObject", "Sketch008")
sketch9.AttachmentSupport = (doc.getObject("XZ_Plane"), [""])
sketch9.MapMode = "FlatFace"
sketch9.AttachmentOffset = App.Placement(App.Vector(0, 0, 7.5), App.Rotation())
sketch9.addGeometry(Part.Circle(App.Vector(0, -29.9, 0), App.Vector(0, 0, 1), 3), False)
sketch9.addGeometry(Part.Circle(App.Vector(0, -29.9, 0), App.Vector(0, 0, 1), 1.8), False)
sketch9.addGeometry(Part.Circle(App.Vector(0, 29.9, 0), App.Vector(0, 0, 1), 3), False)
sketch9.addGeometry(Part.Circle(App.Vector(0, 29.9, 0), App.Vector(0, 0, 1), 1.8), False)
sketch9.addConstraint(Sketcher.Constraint("Coincident", 1, 3, 0, 3))
sketch9.addConstraint(Sketcher.Constraint("Coincident", 3, 3, 2, 3))
sketch9.addConstraint(Sketcher.Constraint("Equal", 0, 2))
sketch9.addConstraint(Sketcher.Constraint("Equal", 1, 3))
sketch9.addConstraint(Sketcher.Constraint("Symmetric", 0, 3, 2, 3, -1, 1))
sketch9.addConstraint(Sketcher.Constraint("PointOnObject", 0, 3, -2))
sketch9.addConstraint(Sketcher.Constraint("Diameter", 0, 6.0))
sketch9.addConstraint(Sketcher.Constraint("Diameter", 1, 3.5))
sketch9.addConstraint(Sketcher.Constraint("DistanceY", 0, 3, -1, 1, 29.9))
pad6 = body.newObject("PartDesign::Pad", "Pad005")
pad6.Profile = sketch9
pad6.Length = 10
pad6.Reversed = True

# Sketch on XZ plane
sketch10 = body.newObject("Sketcher::SketchObject", "Sketch009")
sketch10.AttachmentSupport = (doc.getObject("XZ_Plane"), [""])
sketch10.MapMode = "FlatFace"
sketch10.AttachmentOffset = App.Placement(App.Vector(0, 0, 9.5), App.Rotation())
sketch10.addGeometry(Part.LineSegment(App.Vector(-3, -24.9, 0), App.Vector(-3, -34.9, 0)), False)
sketch10.addGeometry(Part.LineSegment(App.Vector(-3, -34.9, 0), App.Vector(3, -34.9, 0)), False)
sketch10.addGeometry(Part.LineSegment(App.Vector(3, -34.9, 0), App.Vector(3, -24.9, 0)), False)
sketch10.addGeometry(Part.LineSegment(App.Vector(3, -24.9, 0), App.Vector(-3, -24.9, 0)), False)
sketch10.addGeometry(Part.Circle(App.Vector(0, -29.9, 0), App.Vector(0, 0, 1), 1.8), False)
sketch10.addGeometry(Part.LineSegment(App.Vector(-3, 34.9, 0), App.Vector(-3, 24.9, 0)), False)
sketch10.addGeometry(Part.LineSegment(App.Vector(-3, 24.9, 0), App.Vector(3, 24.9, 0)), False)
sketch10.addGeometry(Part.LineSegment(App.Vector(3, 24.9, 0), App.Vector(3, 34.9, 0)), False)
sketch10.addGeometry(Part.LineSegment(App.Vector(3, 34.9, 0), App.Vector(-3, 34.9, 0)), False)
sketch10.addGeometry(Part.Circle(App.Vector(0, 29.9, 0), App.Vector(0, 0, 1), 1.8), False)
sketch10.addConstraint(Sketcher.Constraint("Coincident", 0, 2, 1, 1))
sketch10.addConstraint(Sketcher.Constraint("Coincident", 1, 2, 2, 1))
sketch10.addConstraint(Sketcher.Constraint("Coincident", 2, 2, 3, 1))
sketch10.addConstraint(Sketcher.Constraint("Coincident", 3, 2, 0, 1))
sketch10.addConstraint(Sketcher.Constraint("Coincident", 5, 2, 6, 1))
sketch10.addConstraint(Sketcher.Constraint("Coincident", 6, 2, 7, 1))
sketch10.addConstraint(Sketcher.Constraint("Coincident", 7, 2, 8, 1))
sketch10.addConstraint(Sketcher.Constraint("Coincident", 8, 2, 5, 1))
sketch10.addConstraint(Sketcher.Constraint("Vertical", 0))
sketch10.addConstraint(Sketcher.Constraint("Horizontal", 1))
sketch10.addConstraint(Sketcher.Constraint("Vertical", 2))
sketch10.addConstraint(Sketcher.Constraint("Horizontal", 3))
sketch10.addConstraint(Sketcher.Constraint("Vertical", 5))
sketch10.addConstraint(Sketcher.Constraint("Horizontal", 6))
sketch10.addConstraint(Sketcher.Constraint("Vertical", 7))
sketch10.addConstraint(Sketcher.Constraint("Horizontal", 8))
sketch10.addConstraint(Sketcher.Constraint("Equal", 4, 9))
sketch10.addConstraint(Sketcher.Constraint("Symmetric", 4, 3, 9, 3, -1, 1))
sketch10.addConstraint(Sketcher.Constraint("Symmetric", 2, 2, 5, 2, -1, 1))
sketch10.addConstraint(Sketcher.Constraint("Symmetric", 0, 2, 7, 2, -1, 1))
sketch10.addConstraint(Sketcher.Constraint("PointOnObject", 4, 3, -2))
sketch10.addConstraint(Sketcher.Constraint("Vertical", 3, 2, 5, 2))
sketch10.addConstraint(Sketcher.Constraint("Diameter", 4, 3.5))
sketch10.addConstraint(Sketcher.Constraint("DistanceX", 1, 1, 1, 2, 6.0))
sketch10.addConstraint(Sketcher.Constraint("DistanceY", 0, 2, 0, 1, 10.0))
sketch10.addConstraint(Sketcher.Constraint("DistanceY", 0, 2, 4, 3, 5.0))
sketch10.addConstraint(Sketcher.Constraint("DistanceY", 4, 3, -1, 1, 29.9))
pad7 = body.newObject("PartDesign::Pad", "Pad006")
pad7.Profile = sketch10
pad7.Length = 3.5

# Sketch on XZ plane
sketch11 = body.newObject("Sketcher::SketchObject", "Sketch010")
sketch11.AttachmentSupport = (doc.getObject("XZ_Plane"), [""])
sketch11.MapMode = "FlatFace"
sketch11.AttachmentOffset = App.Placement(App.Vector(0, 0, 13), App.Rotation())
sketch11.addGeometry(Part.LineSegment(App.Vector(0, 26.6, 0), App.Vector(2.9, 28.2, 0)), False)
sketch11.addGeometry(Part.LineSegment(App.Vector(2.9, 28.2, 0), App.Vector(2.9, 31.6, 0)), False)
sketch11.addGeometry(Part.LineSegment(App.Vector(2.9, 31.6, 0), App.Vector(0, 33.2, 0)), False)
sketch11.addGeometry(Part.LineSegment(App.Vector(0, 33.2, 0), App.Vector(-2.9, 31.6, 0)), False)
sketch11.addGeometry(Part.LineSegment(App.Vector(-2.9, 31.6, 0), App.Vector(-2.9, 28.2, 0)), False)
sketch11.addGeometry(Part.LineSegment(App.Vector(-2.9, 28.2, 0), App.Vector(0, 26.6, 0)), False)
sketch11.addGeometry(Part.LineSegment(App.Vector(0, -33.2, 0), App.Vector(2.9, -31.6, 0)), False)
sketch11.addGeometry(Part.LineSegment(App.Vector(2.9, -31.6, 0), App.Vector(2.9, -28.2, 0)), False)
sketch11.addGeometry(Part.LineSegment(App.Vector(2.9, -28.2, 0), App.Vector(0, -26.6, 0)), False)
sketch11.addGeometry(Part.LineSegment(App.Vector(0, -26.6, 0), App.Vector(-2.9, -28.2, 0)), False)
sketch11.addGeometry(Part.LineSegment(App.Vector(-2.9, -28.2, 0), App.Vector(-2.9, -31.6, 0)), False)
sketch11.addGeometry(Part.LineSegment(App.Vector(-2.9, -31.6, 0), App.Vector(0, -33.2, 0)), False)
sketch11.addConstraint(Sketcher.Constraint("Coincident", 0, 2, 1, 1))
sketch11.addConstraint(Sketcher.Constraint("Coincident", 1, 2, 2, 1))
sketch11.addConstraint(Sketcher.Constraint("Coincident", 2, 2, 3, 1))
sketch11.addConstraint(Sketcher.Constraint("Coincident", 3, 2, 4, 1))
sketch11.addConstraint(Sketcher.Constraint("Coincident", 4, 2, 5, 1))
sketch11.addConstraint(Sketcher.Constraint("Coincident", 5, 2, 0, 1))
sketch11.addConstraint(Sketcher.Constraint("Coincident", 6, 2, 7, 1))
sketch11.addConstraint(Sketcher.Constraint("Coincident", 7, 2, 8, 1))
sketch11.addConstraint(Sketcher.Constraint("Coincident", 8, 2, 9, 1))
sketch11.addConstraint(Sketcher.Constraint("Coincident", 9, 2, 10, 1))
sketch11.addConstraint(Sketcher.Constraint("Coincident", 10, 2, 11, 1))
sketch11.addConstraint(Sketcher.Constraint("Coincident", 11, 2, 6, 1))
sketch11.addConstraint(Sketcher.Constraint("Vertical", 1))
sketch11.addConstraint(Sketcher.Constraint("Vertical", 4))
sketch11.addConstraint(Sketcher.Constraint("Vertical", 7))
sketch11.addConstraint(Sketcher.Constraint("Vertical", 10))
sketch11.addConstraint(Sketcher.Constraint("Symmetric", 3, 2, 6, 2, -1, 1))
sketch11.addConstraint(Sketcher.Constraint("Symmetric", 5, 2, 8, 2, -1, 1))
sketch11.addConstraint(Sketcher.Constraint("Symmetric", 0, 2, 9, 2, -1, 1))
sketch11.addConstraint(Sketcher.Constraint("Symmetric", 2, 2, 11, 2, -1, 1))
sketch11.addConstraint(Sketcher.Constraint("Symmetric", 1, 2, 3, 2, -2))
sketch11.addConstraint(Sketcher.Constraint("PointOnObject", 2, 2, -2))
sketch11.addConstraint(Sketcher.Constraint("PointOnObject", 5, 2, -2))
sketch11.addConstraint(Sketcher.Constraint("Parallel", 0, 3))
sketch11.addConstraint(Sketcher.Constraint("Parallel", 2, 5))
sketch11.addConstraint(Sketcher.Constraint("Parallel", 5, 8))
sketch11.addConstraint(Sketcher.Constraint("Parallel", 8, 11))
sketch11.addConstraint(Sketcher.Constraint("Angle", 0, Q("30 deg")))
sketch11.addConstraint(Sketcher.Constraint("DistanceY", 6, 2, 0, 2, 59.8))
sketch11.addConstraint(Sketcher.Constraint("DistanceX", -1, 1, 0, 2, 2.88))
sketch11.addConstraint(Sketcher.Constraint("DistanceY", 1, 1, 1, 2, 3.325538))
pocket4 = body.newObject("PartDesign::Pocket", "Pocket003")
pocket4.Profile = sketch11
pocket4.Length = 3.5

# Sketch on XY plane
sketch12 = body.newObject("Sketcher::SketchObject", "Sketch011")
sketch12.AttachmentSupport = (doc.getObject("XY_Plane"), [""])
sketch12.MapMode = "FlatFace"
sketch12.AttachmentOffset = App.Placement(App.Vector(0, 0, -39.5), App.Rotation())
sketch12.addGeometry(Part.Circle(App.Vector(-12, -8, 0), App.Vector(0, 0, 1), 10), False)
sketch12.addGeometry(Part.Circle(App.Vector(12, -8, 0), App.Vector(0, 0, 1), 10), False)
sketch12.addConstraint(Sketcher.Constraint("Equal", 0, 1))
sketch12.addConstraint(Sketcher.Constraint("Symmetric", 0, 3, 1, 3, -2))
sketch12.addConstraint(Sketcher.Constraint("Diameter", 0, 19.0))
sketch12.addConstraint(Sketcher.Constraint("DistanceX", 0, 3, 1, 3, 25.0))
sketch12.addConstraint(Sketcher.Constraint("DistanceY", 0, 3, -1, 1, 7.5))
pad8 = body.newObject("PartDesign::Pad", "Pad007")
pad8.Profile = sketch12
pad8.Length = 4

# Sketch on XY plane
sketch13 = body.newObject("Sketcher::SketchObject", "Sketch012")
sketch13.AttachmentSupport = (doc.getObject("XY_Plane"), [""])
sketch13.MapMode = "FlatFace"
sketch13.AttachmentOffset = App.Placement(App.Vector(0, 0, 39.5), App.Rotation())
sketch13.addGeometry(Part.Circle(App.Vector(12, -8, 0), App.Vector(0, 0, 1), 10), False)
sketch13.addGeometry(Part.Circle(App.Vector(-12, -8, 0), App.Vector(0, 0, 1), 10), False)
sketch13.addConstraint(Sketcher.Constraint("Equal", 0, 1))
sketch13.addConstraint(Sketcher.Constraint("Symmetric", 0, 3, 1, 3, -2))
sketch13.addConstraint(Sketcher.Constraint("Diameter", 0, 19.0))
sketch13.addConstraint(Sketcher.Constraint("DistanceX", 1, 3, 0, 3, 25.0))
sketch13.addConstraint(Sketcher.Constraint("DistanceY", 0, 3, -1, 1, 7.5))
pad9 = body.newObject("PartDesign::Pad", "Pad008")
pad9.Profile = sketch13
pad9.Length = 4
pad9.Reversed = True

# Sketch on XY plane
sketch14 = body.newObject("Sketcher::SketchObject", "Sketch013")
sketch14.AttachmentSupport = (doc.getObject("XY_Plane"), [""])
sketch14.MapMode = "FlatFace"
sketch14.AttachmentOffset = App.Placement(App.Vector(0, 0, -35.5), App.Rotation())
sketch14.addGeometry(Part.LineSegment(App.Vector(-12.5, -10.8, 0), App.Vector(-9.6, -9.2, 0)), False)
sketch14.addGeometry(Part.LineSegment(App.Vector(-9.6, -9.2, 0), App.Vector(-9.6, -5.8, 0)), False)
sketch14.addGeometry(Part.LineSegment(App.Vector(-9.6, -5.8, 0), App.Vector(-12.5, -4.2, 0)), False)
sketch14.addGeometry(Part.LineSegment(App.Vector(-12.5, -4.2, 0), App.Vector(-15.4, -5.8, 0)), False)
sketch14.addGeometry(Part.LineSegment(App.Vector(-15.4, -5.8, 0), App.Vector(-15.4, -9.2, 0)), False)
sketch14.addGeometry(Part.LineSegment(App.Vector(-15.4, -9.2, 0), App.Vector(-12.5, -10.8, 0)), False)
sketch14.addGeometry(Part.LineSegment(App.Vector(12.5, -10.8, 0), App.Vector(15.4, -9.2, 0)), False)
sketch14.addGeometry(Part.LineSegment(App.Vector(15.4, -9.2, 0), App.Vector(15.4, -5.8, 0)), False)
sketch14.addGeometry(Part.LineSegment(App.Vector(15.4, -5.8, 0), App.Vector(12.5, -4.2, 0)), False)
sketch14.addGeometry(Part.LineSegment(App.Vector(12.5, -4.2, 0), App.Vector(9.6, -5.8, 0)), False)
sketch14.addGeometry(Part.LineSegment(App.Vector(9.6, -5.8, 0), App.Vector(9.6, -9.2, 0)), False)
sketch14.addGeometry(Part.LineSegment(App.Vector(9.6, -9.2, 0), App.Vector(12.5, -10.8, 0)), False)
sketch14.addConstraint(Sketcher.Constraint("Coincident", 0, 2, 1, 1))
sketch14.addConstraint(Sketcher.Constraint("Coincident", 1, 2, 2, 1))
sketch14.addConstraint(Sketcher.Constraint("Coincident", 2, 2, 3, 1))
sketch14.addConstraint(Sketcher.Constraint("Coincident", 3, 2, 4, 1))
sketch14.addConstraint(Sketcher.Constraint("Coincident", 4, 2, 5, 1))
sketch14.addConstraint(Sketcher.Constraint("Coincident", 5, 2, 0, 1))
sketch14.addConstraint(Sketcher.Constraint("Coincident", 6, 2, 7, 1))
sketch14.addConstraint(Sketcher.Constraint("Coincident", 7, 2, 8, 1))
sketch14.addConstraint(Sketcher.Constraint("Coincident", 8, 2, 9, 1))
sketch14.addConstraint(Sketcher.Constraint("Coincident", 9, 2, 10, 1))
sketch14.addConstraint(Sketcher.Constraint("Coincident", 10, 2, 11, 1))
sketch14.addConstraint(Sketcher.Constraint("Coincident", 11, 2, 6, 1))
sketch14.addConstraint(Sketcher.Constraint("Vertical", 1))
sketch14.addConstraint(Sketcher.Constraint("Vertical", 4))
sketch14.addConstraint(Sketcher.Constraint("Vertical", 7))
sketch14.addConstraint(Sketcher.Constraint("Vertical", 10))
sketch14.addConstraint(Sketcher.Constraint("Symmetric", 4, 2, 6, 2, -2))
sketch14.addConstraint(Sketcher.Constraint("Symmetric", 2, 2, 8, 2, -2))
sketch14.addConstraint(Sketcher.Constraint("Symmetric", 1, 2, 9, 2, -2))
sketch14.addConstraint(Sketcher.Constraint("Symmetric", 5, 2, 11, 2, -2))
sketch14.addConstraint(Sketcher.Constraint("Parallel", 0, 3))
sketch14.addConstraint(Sketcher.Constraint("Parallel", 2, 5))
sketch14.addConstraint(Sketcher.Constraint("Parallel", 3, 6))
sketch14.addConstraint(Sketcher.Constraint("Parallel", 5, 8))
sketch14.addConstraint(Sketcher.Constraint("Parallel", 8, 11))
sketch14.addConstraint(Sketcher.Constraint("Horizontal", 1, 2, 3, 2))
sketch14.addConstraint(Sketcher.Constraint("Horizontal", 0, 2, 4, 2))
sketch14.addConstraint(Sketcher.Constraint("Angle", 0, Q("30 deg")))
sketch14.addConstraint(Sketcher.Constraint("DistanceX", 0, 2, 6, 2, 25.0))
sketch14.addConstraint(Sketcher.Constraint("DistanceX", 0, 2, -1, 1, 9.6))
sketch14.addConstraint(Sketcher.Constraint("DistanceY", 1, 1, 1, 2, 3.348632))
sketch14.addConstraint(Sketcher.Constraint("DistanceY", 2, 2, -1, 1, 4.151368))
pocket5 = body.newObject("PartDesign::Pocket", "Pocket004")
pocket5.Profile = sketch14
pocket5.Length = 2.5

# Sketch on XY plane
sketch15 = body.newObject("Sketcher::SketchObject", "Sketch014")
sketch15.AttachmentSupport = (doc.getObject("XY_Plane"), [""])
sketch15.MapMode = "FlatFace"
sketch15.AttachmentOffset = App.Placement(App.Vector(0, 0, -38), App.Rotation())
sketch15.addGeometry(Part.Circle(App.Vector(12.5, -7.5, 0), App.Vector(0, 0, 1), 1), False)
sketch15.addGeometry(Part.Circle(App.Vector(-12.5, -7.5, 0), App.Vector(0, 0, 1), 1), False)
sketch15.addConstraint(Sketcher.Constraint("Equal", 0, 1))
sketch15.addConstraint(Sketcher.Constraint("Symmetric", 0, 3, 1, 3, -2))
sketch15.addConstraint(Sketcher.Constraint("Diameter", 0, 2.0))
sketch15.addConstraint(Sketcher.Constraint("DistanceX", 1, 3, 0, 3, 25.0))
sketch15.addConstraint(Sketcher.Constraint("DistanceY", 0, 3, -1, 1, 7.5))
pocket6 = body.newObject("PartDesign::Pocket", "Pocket005")
pocket6.Profile = sketch15
pocket6.Type = "ThroughAll"

# Sketch on XY plane
sketch16 = body.newObject("Sketcher::SketchObject", "Sketch015")
sketch16.AttachmentSupport = (doc.getObject("XY_Plane"), [""])
sketch16.MapMode = "FlatFace"
sketch16.AttachmentOffset = App.Placement(App.Vector(0, 0, 35.5), App.Rotation())
sketch16.addGeometry(Part.Circle(App.Vector(12.5, -7.5, 0), App.Vector(0, 0, 1), 3.8), False)
sketch16.addGeometry(Part.Circle(App.Vector(-12.5, -7.5, 0), App.Vector(0, 0, 1), 3.8), False)
sketch16.addConstraint(Sketcher.Constraint("Equal", 0, 1))
sketch16.addConstraint(Sketcher.Constraint("Symmetric", 0, 3, 1, 3, -2))
sketch16.addConstraint(Sketcher.Constraint("Diameter", 0, 7.5))
sketch16.addConstraint(Sketcher.Constraint("DistanceX", 1, 3, 0, 3, 25.0))
sketch16.addConstraint(Sketcher.Constraint("DistanceY", 0, 3, -1, 1, 7.5))
pocket7 = body.newObject("PartDesign::Pocket", "Pocket006")
pocket7.Profile = sketch16
pocket7.Length = 3
pocket7.Reversed = True

# Sketch on XY plane
sketch17 = body.newObject("Sketcher::SketchObject", "Sketch016")
sketch17.AttachmentSupport = (doc.getObject("XY_Plane"), [""])
sketch17.MapMode = "FlatFace"
sketch17.AttachmentOffset = App.Placement(App.Vector(0, 0, 38.5), App.Rotation())
sketch17.addGeometry(Part.Circle(App.Vector(12.5, -7.5, 0), App.Vector(0, 0, 1), 1), False)
sketch17.addGeometry(Part.Circle(App.Vector(-12.5, -7.5, 0), App.Vector(0, 0, 1), 1), False)
sketch17.addConstraint(Sketcher.Constraint("Equal", 0, 1))
sketch17.addConstraint(Sketcher.Constraint("Symmetric", 0, 3, 1, 3, -2))
sketch17.addConstraint(Sketcher.Constraint("Diameter", 0, 2.0))
sketch17.addConstraint(Sketcher.Constraint("DistanceX", 1, 3, 0, 3, 25.0))
sketch17.addConstraint(Sketcher.Constraint("DistanceY", 0, 3, -1, 1, 7.5))
pocket8 = body.newObject("PartDesign::Pocket", "Pocket007")
pocket8.Profile = sketch17
pocket8.Type = "ThroughAll"
pocket8.Reversed = True

doc.recompute()
